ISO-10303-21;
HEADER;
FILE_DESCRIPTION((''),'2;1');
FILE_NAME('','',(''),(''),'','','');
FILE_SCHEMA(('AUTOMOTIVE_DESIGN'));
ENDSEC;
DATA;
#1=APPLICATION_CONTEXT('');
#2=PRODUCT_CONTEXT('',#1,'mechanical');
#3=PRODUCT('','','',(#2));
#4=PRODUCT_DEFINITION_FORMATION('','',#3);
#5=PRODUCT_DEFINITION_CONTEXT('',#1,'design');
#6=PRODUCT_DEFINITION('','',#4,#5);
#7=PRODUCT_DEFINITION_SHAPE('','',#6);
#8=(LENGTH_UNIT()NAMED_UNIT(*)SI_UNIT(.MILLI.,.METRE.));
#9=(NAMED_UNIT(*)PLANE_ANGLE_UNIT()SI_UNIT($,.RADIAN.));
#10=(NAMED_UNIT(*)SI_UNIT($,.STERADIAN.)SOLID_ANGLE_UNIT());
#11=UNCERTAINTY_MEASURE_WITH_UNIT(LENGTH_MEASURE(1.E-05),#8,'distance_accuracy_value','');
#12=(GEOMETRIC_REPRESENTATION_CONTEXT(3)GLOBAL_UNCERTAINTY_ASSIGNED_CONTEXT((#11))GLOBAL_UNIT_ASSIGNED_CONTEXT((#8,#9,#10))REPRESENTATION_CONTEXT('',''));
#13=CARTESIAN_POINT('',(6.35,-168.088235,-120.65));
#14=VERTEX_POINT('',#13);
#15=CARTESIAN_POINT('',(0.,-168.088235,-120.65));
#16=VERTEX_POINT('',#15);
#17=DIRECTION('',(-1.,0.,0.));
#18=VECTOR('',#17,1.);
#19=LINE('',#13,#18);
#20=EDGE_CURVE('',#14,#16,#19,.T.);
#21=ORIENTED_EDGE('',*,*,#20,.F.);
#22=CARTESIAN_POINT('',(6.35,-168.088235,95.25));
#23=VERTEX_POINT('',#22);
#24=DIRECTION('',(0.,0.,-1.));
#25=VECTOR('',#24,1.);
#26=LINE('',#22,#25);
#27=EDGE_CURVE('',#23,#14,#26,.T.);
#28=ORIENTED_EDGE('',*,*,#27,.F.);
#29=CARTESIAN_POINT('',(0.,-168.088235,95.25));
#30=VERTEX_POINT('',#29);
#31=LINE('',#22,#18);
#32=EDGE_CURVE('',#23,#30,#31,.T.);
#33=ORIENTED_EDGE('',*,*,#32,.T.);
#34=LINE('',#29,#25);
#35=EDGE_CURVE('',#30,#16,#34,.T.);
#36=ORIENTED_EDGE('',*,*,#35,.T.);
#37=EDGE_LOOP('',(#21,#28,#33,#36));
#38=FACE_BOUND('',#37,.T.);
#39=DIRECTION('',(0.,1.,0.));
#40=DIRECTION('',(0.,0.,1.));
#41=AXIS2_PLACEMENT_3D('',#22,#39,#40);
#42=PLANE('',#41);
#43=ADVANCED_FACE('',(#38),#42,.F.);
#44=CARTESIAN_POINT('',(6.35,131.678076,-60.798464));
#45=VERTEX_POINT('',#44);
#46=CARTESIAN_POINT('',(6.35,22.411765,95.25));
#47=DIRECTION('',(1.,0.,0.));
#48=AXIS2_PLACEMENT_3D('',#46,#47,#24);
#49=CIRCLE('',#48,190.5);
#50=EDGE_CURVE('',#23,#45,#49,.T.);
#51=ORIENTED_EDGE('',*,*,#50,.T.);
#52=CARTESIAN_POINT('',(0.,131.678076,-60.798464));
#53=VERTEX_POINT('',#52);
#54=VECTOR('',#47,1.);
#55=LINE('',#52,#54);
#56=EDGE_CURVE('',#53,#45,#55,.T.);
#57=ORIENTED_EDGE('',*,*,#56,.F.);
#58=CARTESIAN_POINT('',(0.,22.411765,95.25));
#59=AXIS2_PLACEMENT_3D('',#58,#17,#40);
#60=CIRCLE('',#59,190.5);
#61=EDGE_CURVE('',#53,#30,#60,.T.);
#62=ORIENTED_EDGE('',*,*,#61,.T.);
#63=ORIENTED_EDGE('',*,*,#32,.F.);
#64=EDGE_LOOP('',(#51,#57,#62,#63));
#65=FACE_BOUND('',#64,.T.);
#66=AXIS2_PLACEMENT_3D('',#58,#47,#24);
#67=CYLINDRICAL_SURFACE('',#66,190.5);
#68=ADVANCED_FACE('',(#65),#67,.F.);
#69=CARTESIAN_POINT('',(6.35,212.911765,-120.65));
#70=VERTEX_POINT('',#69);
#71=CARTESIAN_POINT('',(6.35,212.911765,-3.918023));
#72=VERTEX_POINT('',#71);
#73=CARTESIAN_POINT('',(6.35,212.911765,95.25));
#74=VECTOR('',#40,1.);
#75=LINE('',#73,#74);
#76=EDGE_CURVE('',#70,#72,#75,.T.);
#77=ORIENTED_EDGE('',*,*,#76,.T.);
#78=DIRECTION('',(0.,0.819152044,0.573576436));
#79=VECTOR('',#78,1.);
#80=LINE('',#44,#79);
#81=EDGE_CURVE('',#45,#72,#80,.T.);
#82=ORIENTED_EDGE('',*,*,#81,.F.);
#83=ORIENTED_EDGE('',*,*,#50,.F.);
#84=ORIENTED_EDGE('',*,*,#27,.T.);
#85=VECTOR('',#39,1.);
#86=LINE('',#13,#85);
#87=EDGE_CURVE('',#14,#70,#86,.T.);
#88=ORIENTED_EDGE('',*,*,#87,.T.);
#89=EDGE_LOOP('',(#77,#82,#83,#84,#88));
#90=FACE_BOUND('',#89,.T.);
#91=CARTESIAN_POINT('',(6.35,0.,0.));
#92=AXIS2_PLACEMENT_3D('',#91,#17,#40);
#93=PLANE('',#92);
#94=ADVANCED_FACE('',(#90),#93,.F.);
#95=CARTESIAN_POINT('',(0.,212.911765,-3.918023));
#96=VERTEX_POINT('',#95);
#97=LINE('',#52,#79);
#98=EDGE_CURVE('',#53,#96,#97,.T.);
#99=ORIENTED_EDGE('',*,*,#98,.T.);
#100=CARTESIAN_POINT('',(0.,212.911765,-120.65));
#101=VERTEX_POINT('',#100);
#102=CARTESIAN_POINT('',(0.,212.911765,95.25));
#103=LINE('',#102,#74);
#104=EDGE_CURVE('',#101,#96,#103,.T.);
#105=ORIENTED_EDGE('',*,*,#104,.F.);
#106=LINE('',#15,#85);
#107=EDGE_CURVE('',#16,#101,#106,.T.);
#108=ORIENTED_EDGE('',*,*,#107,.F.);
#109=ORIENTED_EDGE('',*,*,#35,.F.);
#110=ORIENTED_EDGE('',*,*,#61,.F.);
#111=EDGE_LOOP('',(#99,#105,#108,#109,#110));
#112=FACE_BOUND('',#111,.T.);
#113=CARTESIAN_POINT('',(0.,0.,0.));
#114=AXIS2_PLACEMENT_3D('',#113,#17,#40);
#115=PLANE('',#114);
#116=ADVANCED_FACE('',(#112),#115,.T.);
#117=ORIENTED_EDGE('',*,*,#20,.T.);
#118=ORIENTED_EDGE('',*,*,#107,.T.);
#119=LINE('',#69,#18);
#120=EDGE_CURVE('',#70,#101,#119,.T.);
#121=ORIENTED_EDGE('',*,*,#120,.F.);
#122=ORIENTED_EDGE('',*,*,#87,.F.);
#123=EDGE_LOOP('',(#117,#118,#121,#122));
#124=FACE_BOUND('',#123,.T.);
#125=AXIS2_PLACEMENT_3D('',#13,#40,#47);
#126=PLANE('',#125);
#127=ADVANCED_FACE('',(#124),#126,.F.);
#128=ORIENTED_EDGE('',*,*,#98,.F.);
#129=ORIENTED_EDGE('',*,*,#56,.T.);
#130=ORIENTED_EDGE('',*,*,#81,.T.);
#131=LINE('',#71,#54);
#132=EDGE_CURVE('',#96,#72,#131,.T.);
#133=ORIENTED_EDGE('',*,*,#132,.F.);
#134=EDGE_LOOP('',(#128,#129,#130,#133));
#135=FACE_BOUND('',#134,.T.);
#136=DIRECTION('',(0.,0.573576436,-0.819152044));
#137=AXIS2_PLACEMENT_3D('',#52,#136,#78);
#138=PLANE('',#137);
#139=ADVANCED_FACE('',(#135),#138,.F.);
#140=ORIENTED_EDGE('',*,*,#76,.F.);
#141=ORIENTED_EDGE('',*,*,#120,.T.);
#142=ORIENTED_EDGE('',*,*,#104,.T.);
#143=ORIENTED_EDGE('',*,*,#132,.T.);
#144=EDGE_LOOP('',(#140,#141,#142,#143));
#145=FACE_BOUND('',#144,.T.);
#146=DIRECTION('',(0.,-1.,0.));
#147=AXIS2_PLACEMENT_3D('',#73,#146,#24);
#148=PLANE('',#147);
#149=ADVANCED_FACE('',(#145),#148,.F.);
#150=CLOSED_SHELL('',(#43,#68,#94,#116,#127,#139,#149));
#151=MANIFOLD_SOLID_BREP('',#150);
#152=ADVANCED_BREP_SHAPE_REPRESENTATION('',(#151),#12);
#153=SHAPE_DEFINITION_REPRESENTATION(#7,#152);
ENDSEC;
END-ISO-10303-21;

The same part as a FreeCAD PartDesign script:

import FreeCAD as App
import Part
import Sketcher
from FreeCAD import Vector
Q = App.Units.Quantity


def add_polygon(sketch, points):
    """Adds a closed chain of lines whose ends are joined by coincident constraints."""
    first, n = sketch.GeometryCount, len(points)
    for a, b in zip(points, points[1:] + points[:1]):
        sketch.addGeometry(Part.LineSegment(App.Vector(*a, 0), App.Vector(*b, 0)), False)
    for i in range(n):
        sketch.addConstraint(Sketcher.Constraint("Coincident", first + i, 2, first + (i + 1) % n, 1))

doc = App.newDocument("Part")
body = doc.addObject("PartDesign::Body", "Body")

sketch1 = body.newObject("Sketcher::SketchObject", "Sketch")
sketch1.AttachmentSupport = (doc.getObject("YZ_Plane"), [""])
sketch1.MapMode = "FlatFace"
add_polygon(sketch1, [(213, 95), (-168, 95), (-168, -121), (213, -121)])
sketch1.addConstraint([
    Sketcher.Constraint("Horizontal", 0),
    Sketcher.Constraint("Vertical", 1),
    Sketcher.Constraint("Horizontal", 2),
    Sketcher.Constraint("Vertical", 3),
    Sketcher.Constraint("DistanceX", 0, 2, 0, 1, Q("15 in")),
    Sketcher.Constraint("DistanceY", 1, 2, 1, 1, Q("8.5 in")),
    Sketcher.Constraint("DistanceY", -1, 1, 0, 2, Q("3.75 in")),
    Sketcher.Constraint("DistanceX", 0, 2, -1, 1, Q("168.088235 mm")),
])
pad1 = body.newObject("PartDesign::Pad", "Pad")
pad1.Profile = sketch1
pad1.Length = Q("0.25 in")

sketch2 = body.newObject("Sketcher::SketchObject", "Sketch001")
sketch2.AttachmentSupport = (doc.getObject("YZ_Plane"), [""])
sketch2.MapMode = "FlatFace"
sketch2.AttachmentOffset = App.Placement(Vector(0, 0, 0.25 * 25.4), App.Rotation())
sketch2.addGeometry(Part.Circle(Vector(22, 95, 0), Vector(0, 0, 1), 190), False)
sketch2.addConstraint([
    Sketcher.Constraint("Diameter", 0, Q("15 in")),
    Sketcher.Constraint("DistanceY", -1, 1, 0, 3, Q("3.75 in")),
    Sketcher.Constraint("DistanceX", -1, 1, 0, 3, Q("22.411765 mm")),
])
pocket1 = body.newObject("PartDesign::Pocket", "Pocket")
pocket1.Profile = sketch2
pocket1.Type = "ThroughAll"

sketch3 = body.newObject("Sketcher::SketchObject", "Sketch002")
sketch3.AttachmentSupport = (doc.getObject("YZ_Plane"), [""])
sketch3.MapMode = "FlatFace"
sketch3.AttachmentOffset = App.Placement(Vector(0, 0, 0.25 * 25.4), App.Rotation())
add_polygon(sketch3, [(132, -61), (246, 19), (246, 203), (132, 203)])
sketch3.addConstraint([
    Sketcher.Constraint("Vertical", 1),
    Sketcher.Constraint("Horizontal", 2),
    Sketcher.Constraint("Vertical", 3),
    Sketcher.Constraint("Angle", 0, Q("35 deg")),
    Sketcher.Constraint("DistanceY", 3, 2, 3, 1, Q("264.2447 mm")),
    Sketcher.Constraint("DistanceY", 1, 1, 1, 2, Q("184.477991 mm")),
    Sketcher.Constraint("DistanceX", -1, 1, 0, 2, Q("245.596741 mm")),
    Sketcher.Constraint("DistanceY", -1, 1, 0, 2, Q("18.968244 mm")),
])
pocket2 = body.newObject("PartDesign::Pocket", "Pocket001")
pocket2.Profile = sketch3
pocket2.Type = "ThroughAll"

doc.recompute()
